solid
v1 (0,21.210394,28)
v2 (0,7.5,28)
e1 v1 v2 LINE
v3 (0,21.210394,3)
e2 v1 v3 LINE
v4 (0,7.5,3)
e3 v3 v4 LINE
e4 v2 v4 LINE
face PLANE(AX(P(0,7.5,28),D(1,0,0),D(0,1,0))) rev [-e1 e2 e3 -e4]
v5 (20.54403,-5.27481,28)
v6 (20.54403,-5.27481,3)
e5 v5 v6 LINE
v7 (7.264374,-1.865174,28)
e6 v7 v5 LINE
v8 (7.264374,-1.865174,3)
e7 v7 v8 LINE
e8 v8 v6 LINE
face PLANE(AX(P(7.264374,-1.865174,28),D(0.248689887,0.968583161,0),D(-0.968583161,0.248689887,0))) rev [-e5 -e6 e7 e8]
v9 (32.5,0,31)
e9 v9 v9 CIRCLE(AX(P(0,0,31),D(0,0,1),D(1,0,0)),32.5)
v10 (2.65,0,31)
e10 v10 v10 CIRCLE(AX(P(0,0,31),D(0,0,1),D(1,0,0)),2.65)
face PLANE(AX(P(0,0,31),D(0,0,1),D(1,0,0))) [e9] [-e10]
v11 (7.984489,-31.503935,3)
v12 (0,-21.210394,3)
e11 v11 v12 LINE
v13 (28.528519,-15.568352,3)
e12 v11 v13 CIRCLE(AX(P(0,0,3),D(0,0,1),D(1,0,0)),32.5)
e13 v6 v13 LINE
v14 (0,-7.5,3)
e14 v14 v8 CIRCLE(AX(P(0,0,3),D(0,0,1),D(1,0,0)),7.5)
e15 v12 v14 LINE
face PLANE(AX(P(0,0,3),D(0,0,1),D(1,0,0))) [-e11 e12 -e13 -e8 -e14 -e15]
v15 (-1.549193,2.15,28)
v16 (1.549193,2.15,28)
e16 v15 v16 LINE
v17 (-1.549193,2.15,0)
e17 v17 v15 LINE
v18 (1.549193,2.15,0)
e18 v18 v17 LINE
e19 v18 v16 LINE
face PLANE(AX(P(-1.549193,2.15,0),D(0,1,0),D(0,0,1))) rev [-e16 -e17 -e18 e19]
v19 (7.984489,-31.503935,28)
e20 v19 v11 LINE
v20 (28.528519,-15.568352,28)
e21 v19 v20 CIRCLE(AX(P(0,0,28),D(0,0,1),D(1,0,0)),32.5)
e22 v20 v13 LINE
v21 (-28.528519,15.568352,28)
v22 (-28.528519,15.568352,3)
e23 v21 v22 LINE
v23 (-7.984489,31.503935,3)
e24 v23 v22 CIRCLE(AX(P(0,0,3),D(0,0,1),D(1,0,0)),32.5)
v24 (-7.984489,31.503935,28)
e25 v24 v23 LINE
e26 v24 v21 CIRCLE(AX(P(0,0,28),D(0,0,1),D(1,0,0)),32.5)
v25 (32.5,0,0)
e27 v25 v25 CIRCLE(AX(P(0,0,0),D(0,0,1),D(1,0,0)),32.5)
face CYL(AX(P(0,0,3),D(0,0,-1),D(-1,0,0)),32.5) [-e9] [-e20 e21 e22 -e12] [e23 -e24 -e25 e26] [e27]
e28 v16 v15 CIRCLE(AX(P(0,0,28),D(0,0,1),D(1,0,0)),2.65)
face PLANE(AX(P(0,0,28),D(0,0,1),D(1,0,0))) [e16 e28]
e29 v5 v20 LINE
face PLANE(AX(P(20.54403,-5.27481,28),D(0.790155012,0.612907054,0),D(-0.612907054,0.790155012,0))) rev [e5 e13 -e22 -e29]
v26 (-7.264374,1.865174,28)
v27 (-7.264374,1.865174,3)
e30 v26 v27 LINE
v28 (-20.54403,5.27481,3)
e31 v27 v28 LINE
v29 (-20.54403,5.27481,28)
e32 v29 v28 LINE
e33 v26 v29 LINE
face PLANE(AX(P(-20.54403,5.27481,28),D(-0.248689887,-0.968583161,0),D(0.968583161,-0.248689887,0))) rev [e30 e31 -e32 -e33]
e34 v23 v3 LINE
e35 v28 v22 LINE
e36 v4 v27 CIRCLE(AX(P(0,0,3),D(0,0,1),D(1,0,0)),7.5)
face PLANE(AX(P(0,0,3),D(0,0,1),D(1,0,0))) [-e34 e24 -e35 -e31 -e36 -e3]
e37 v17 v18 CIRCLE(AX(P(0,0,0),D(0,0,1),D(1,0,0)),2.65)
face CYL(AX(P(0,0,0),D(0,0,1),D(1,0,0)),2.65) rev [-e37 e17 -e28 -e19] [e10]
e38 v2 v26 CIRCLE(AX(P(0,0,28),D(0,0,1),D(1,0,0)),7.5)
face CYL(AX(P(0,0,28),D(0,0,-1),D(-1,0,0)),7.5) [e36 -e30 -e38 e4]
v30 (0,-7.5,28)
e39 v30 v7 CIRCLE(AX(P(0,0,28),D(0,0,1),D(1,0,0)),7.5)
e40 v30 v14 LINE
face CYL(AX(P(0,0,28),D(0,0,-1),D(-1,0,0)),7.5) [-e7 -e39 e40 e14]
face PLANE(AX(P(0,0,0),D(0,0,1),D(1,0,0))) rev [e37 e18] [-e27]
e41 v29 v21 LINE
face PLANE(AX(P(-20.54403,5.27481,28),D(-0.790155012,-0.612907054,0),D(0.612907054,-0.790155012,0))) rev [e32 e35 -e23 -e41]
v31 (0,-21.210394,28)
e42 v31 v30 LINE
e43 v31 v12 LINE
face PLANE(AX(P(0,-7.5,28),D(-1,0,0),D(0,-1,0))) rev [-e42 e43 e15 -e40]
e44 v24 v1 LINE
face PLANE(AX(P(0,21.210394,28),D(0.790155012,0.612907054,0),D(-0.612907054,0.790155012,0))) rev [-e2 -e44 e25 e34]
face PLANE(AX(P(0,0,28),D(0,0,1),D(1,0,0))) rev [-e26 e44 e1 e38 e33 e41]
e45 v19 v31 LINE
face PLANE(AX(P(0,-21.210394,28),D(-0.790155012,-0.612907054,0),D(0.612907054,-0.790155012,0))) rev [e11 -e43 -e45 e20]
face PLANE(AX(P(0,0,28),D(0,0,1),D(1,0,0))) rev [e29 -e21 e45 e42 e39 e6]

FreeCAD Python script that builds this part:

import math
import FreeCAD as App
import Part
import Sketcher

V = App.Vector
Q = App.Units.Quantity

doc = App.newDocument("Part")
body = doc.addObject("PartDesign::Body", "Body")

sketch1 = body.newObject("Sketcher::SketchObject", "Sketch")
sketch1.AttachmentSupport = (doc.getObject("XY_Plane"), [""])
sketch1.MapMode = "FlatFace"
sketch1.addGeometry(Part.Circle(V(0, 0, 0), V(0, 0, 1), 32), False)
sketch1.addConstraint(Sketcher.Constraint("Coincident", 0, 3, -1, 1))
sketch1.addConstraint(Sketcher.Constraint("Diameter", 0, 65.0))
pad1 = body.newObject("PartDesign::Pad", "Pad")
pad1.Profile = sketch1
pad1.Length = 3

sketch2 = body.newObject("Sketcher::SketchObject", "Sketch001")
sketch2.AttachmentSupport = (doc.getObject("XY_Plane"), [""])
sketch2.MapMode = "FlatFace"
sketch2.AttachmentOffset = App.Placement(V(0, 0, 3), App.Rotation())
sketch2.addGeometry(Part.LineSegment(V(0, 21, 0), V(0, 8, 0)), False)
sketch2.addGeometry(Part.ArcOfCircle(Part.Circle(V(0, 0, 0), V(0, 0, 1), 7), math.radians(90), math.radians(166)), False)
sketch2.addGeometry(Part.LineSegment(V(-7, 2, 0), V(-21, 5, 0)), False)
sketch2.addGeometry(Part.LineSegment(V(-21, 5, 0), V(-29, 16, 0)), False)
sketch2.addGeometry(Part.ArcOfCircle(Part.Circle(V(0, 0, 0), V(0, 0, 1), 33), math.radians(151.38), math.radians(165.6)), False)
sketch2.addGeometry(Part.ArcOfCircle(Part.Circle(V(0, 0, 0), V(0, 0, 1), 32), math.radians(166), math.radians(270)), False)
sketch2.addGeometry(Part.ArcOfCircle(Part.Circle(V(0, 0, 0), V(0, 0, 1), 33), math.radians(-90), math.radians(-75.78)), False)
sketch2.addGeometry(Part.LineSegment(V(8, -32, 0), V(0, -21, 0)), False)
sketch2.addGeometry(Part.LineSegment(V(0, -21, 0), V(0, -8, 0)), False)
sketch2.addGeometry(Part.ArcOfCircle(Part.Circle(V(0, 0, 0), V(0, 0, 1), 7), math.radians(-90), math.radians(-14)), False)
sketch2.addGeometry(Part.LineSegment(V(7, -2, 0), V(21, -5, 0)), False)
sketch2.addGeometry(Part.LineSegment(V(21, -5, 0), V(29, -16, 0)), False)
sketch2.addGeometry(Part.ArcOfCircle(Part.Circle(V(0, 0, 0), V(0, 0, 1), 33), math.radians(-28.62), math.radians(-14.4)), False)
sketch2.addGeometry(Part.ArcOfCircle(Part.Circle(V(0, 0, 0), V(0, 0, 1), 32), math.radians(-14), math.radians(90)), False)
sketch2.addGeometry(Part.ArcOfCircle(Part.Circle(V(0, 0, 0), V(0, 0, 1), 33), math.radians(90), math.radians(104.22)), False)
sketch2.addGeometry(Part.LineSegment(V(-8, 32, 0), V(0, 21, 0)), False)
sketch2.addConstraint(Sketcher.Constraint("Coincident", 0, 2, 1, 1))
sketch2.addConstraint(Sketcher.Constraint("Coincident", 1, 2, 2, 1))
sketch2.addConstraint(Sketcher.Constraint("Coincident", 2, 2, 3, 1))
sketch2.addConstraint(Sketcher.Constraint("Coincident", 3, 2, 4, 1))
sketch2.addConstraint(Sketcher.Constraint("Tangent", 4, 2, 5, 1))
sketch2.addConstraint(Sketcher.Constraint("Tangent", 5, 2, 6, 1))
sketch2.addConstraint(Sketcher.Constraint("Coincident", 6, 2, 7, 1))
sketch2.addConstraint(Sketcher.Constraint("Coincident", 7, 2, 8, 1))
sketch2.addConstraint(Sketcher.Constraint("Coincident", 8, 2, 9, 1))
sketch2.addConstraint(Sketcher.Constraint("Coincident", 9, 2, 10, 1))
sketch2.addConstraint(Sketcher.Constraint("Coincident", 10, 2, 11, 1))
sketch2.addConstraint(Sketcher.Constraint("Coincident", 11, 2, 12, 1))
sketch2.addConstraint(Sketcher.Constraint("Tangent", 12, 2, 13, 1))
sketch2.addConstraint(Sketcher.Constraint("Tangent", 13, 2, 14, 1))
sketch2.addConstraint(Sketcher.Constraint("Coincident", 14, 2, 15, 1))
sketch2.addConstraint(Sketcher.Constraint("Coincident", 15, 2, 0, 1))
sketch2.addConstraint(Sketcher.Constraint("Vertical", 0))
sketch2.addConstraint(Sketcher.Constraint("Vertical", 8))
sketch2.addConstraint(Sketcher.Constraint("Coincident", 1, 3, -1, 1))
sketch2.addConstraint(Sketcher.Constraint("Coincident", 4, 3, -1, 1))
sketch2.addConstraint(Sketcher.Constraint("Coincident", 6, 3, -1, 1))
sketch2.addConstraint(Sketcher.Constraint("Coincident", 9, 3, -1, 1))
sketch2.addConstraint(Sketcher.Constraint("Coincident", 12, 3, -1, 1))
sketch2.addConstraint(Sketcher.Constraint("Coincident", 14, 3, -1, 1))
sketch2.addConstraint(Sketcher.Constraint("Equal", 1, 9))
sketch2.addConstraint(Sketcher.Constraint("Equal", 6, 12))
sketch2.addConstraint(Sketcher.Constraint("Symmetric", 2, 2, 10, 2, -1, 1))
sketch2.addConstraint(Sketcher.Constraint("Symmetric", 7, 2, 15, 2, -1, 1))
sketch2.addConstraint(Sketcher.Constraint("PointOnObject", 0, 2, -2))
sketch2.addConstraint(Sketcher.Constraint("PointOnObject", 5, 2, -2))
sketch2.addConstraint(Sketcher.Constraint("PointOnObject", 13, 2, -2))
sketch2.addConstraint(Sketcher.Constraint("Parallel", 3, 7))
sketch2.addConstraint(Sketcher.Constraint("Parallel", 2, 10))
sketch2.addConstraint(Sketcher.Constraint("Parallel", 7, 11))
sketch2.addConstraint(Sketcher.Constraint("Parallel", 11, 15))
sketch2.addConstraint(Sketcher.Constraint("Equal", 3, 7))
sketch2.addConstraint(Sketcher.Constraint("Radius", 1, 7.5))
sketch2.addConstraint(Sketcher.Constraint("Radius", 4, 32.5))
sketch2.addConstraint(Sketcher.Constraint("Angle", 2, Q("165.6 deg")))
sketch2.addConstraint(Sketcher.Constraint("Angle", 3, Q("127.8 deg")))
sketch2.addConstraint(Sketcher.Constraint("DistanceY", 0, 2, 0, 1, 13.710394))
sketch2.addConstraint(Sketcher.Constraint("DistanceX", 2, 2, -1, 1, 20.54403))
sketch2.addConstraint(Sketcher.Constraint("DistanceY", -1, 1, 4, 2, 8.082421))
sketch2.addConstraint(Sketcher.Constraint("DistanceY", 12, 2, -1, 1, 8.082421))
pad2 = body.newObject("PartDesign::Pad", "Pad001")
pad2.Profile = sketch2
pad2.Length = 25

sketch3 = body.newObject("Sketcher::SketchObject", "Sketch002")
sketch3.AttachmentSupport = (doc.getObject("XY_Plane"), [""])
sketch3.MapMode = "FlatFace"
sketch3.AttachmentOffset = App.Placement(V(0, 0, 28), App.Rotation())
sketch3.addGeometry(Part.Circle(V(0, 0, 0), V(0, 0, 1), 32), False)
sketch3.addConstraint(Sketcher.Constraint("Coincident", 0, 3, -1, 1))
sketch3.addConstraint(Sketcher.Constraint("Diameter", 0, 65.0))
pad3 = body.newObject("PartDesign::Pad", "Pad002")
pad3.Profile = sketch3
pad3.Length = 3

sketch4 = body.newObject("Sketcher::SketchObject", "Sketch003")
sketch4.AttachmentSupport = (doc.getObject("XY_Plane"), [""])
sketch4.MapMode = "FlatFace"
sketch4.AttachmentOffset = App.Placement(V(0, 0, 31), App.Rotation())
sketch4.addGeometry(Part.LineSegment(V(1.5, 2.1, 0), V(-1.5, 2.1, 0)), False)
sketch4.addGeometry(Part.ArcOfCircle(Part.Circle(V(0, 0, 0), V(0, 0, 1), 2.6), math.radians(126), math.radians(414)), False)
sketch4.addConstraint(Sketcher.Constraint("Coincident", 0, 1, 1, 2))
sketch4.addConstraint(Sketcher.Constraint("Coincident", 1, 1, 0, 2))
sketch4.addConstraint(Sketcher.Constraint("Horizontal", 0))
sketch4.addConstraint(Sketcher.Constraint("Coincident", 1, 3, -1, 1))
sketch4.addConstraint(Sketcher.Constraint("Radius", 1, 2.65))
sketch4.addConstraint(Sketcher.Constraint("DistanceY", -1, 1, 0, 1, 2.15))
pocket1 = body.newObject("PartDesign::Pocket", "Pocket")
pocket1.Profile = sketch4
pocket1.Type = "ThroughAll"

sketch5 = body.newObject("Sketcher::SketchObject", "Sketch004")
sketch5.AttachmentSupport = (doc.getObject("XY_Plane"), [""])
sketch5.MapMode = "FlatFace"
sketch5.AttachmentOffset = App.Placement(V(0, 0, 31), App.Rotation())
sketch5.addGeometry(Part.Circle(V(0, 0, 0), V(0, 0, 1), 2.6), False)
sketch5.addConstraint(Sketcher.Constraint("Coincident", 0, 3, -1, 1))
sketch5.addConstraint(Sketcher.Constraint("Diameter", 0, 5.3))
pocket2 = body.newObject("PartDesign::Pocket", "Pocket001")
pocket2.Profile = sketch5
pocket2.Length = 3

doc.recompute()
